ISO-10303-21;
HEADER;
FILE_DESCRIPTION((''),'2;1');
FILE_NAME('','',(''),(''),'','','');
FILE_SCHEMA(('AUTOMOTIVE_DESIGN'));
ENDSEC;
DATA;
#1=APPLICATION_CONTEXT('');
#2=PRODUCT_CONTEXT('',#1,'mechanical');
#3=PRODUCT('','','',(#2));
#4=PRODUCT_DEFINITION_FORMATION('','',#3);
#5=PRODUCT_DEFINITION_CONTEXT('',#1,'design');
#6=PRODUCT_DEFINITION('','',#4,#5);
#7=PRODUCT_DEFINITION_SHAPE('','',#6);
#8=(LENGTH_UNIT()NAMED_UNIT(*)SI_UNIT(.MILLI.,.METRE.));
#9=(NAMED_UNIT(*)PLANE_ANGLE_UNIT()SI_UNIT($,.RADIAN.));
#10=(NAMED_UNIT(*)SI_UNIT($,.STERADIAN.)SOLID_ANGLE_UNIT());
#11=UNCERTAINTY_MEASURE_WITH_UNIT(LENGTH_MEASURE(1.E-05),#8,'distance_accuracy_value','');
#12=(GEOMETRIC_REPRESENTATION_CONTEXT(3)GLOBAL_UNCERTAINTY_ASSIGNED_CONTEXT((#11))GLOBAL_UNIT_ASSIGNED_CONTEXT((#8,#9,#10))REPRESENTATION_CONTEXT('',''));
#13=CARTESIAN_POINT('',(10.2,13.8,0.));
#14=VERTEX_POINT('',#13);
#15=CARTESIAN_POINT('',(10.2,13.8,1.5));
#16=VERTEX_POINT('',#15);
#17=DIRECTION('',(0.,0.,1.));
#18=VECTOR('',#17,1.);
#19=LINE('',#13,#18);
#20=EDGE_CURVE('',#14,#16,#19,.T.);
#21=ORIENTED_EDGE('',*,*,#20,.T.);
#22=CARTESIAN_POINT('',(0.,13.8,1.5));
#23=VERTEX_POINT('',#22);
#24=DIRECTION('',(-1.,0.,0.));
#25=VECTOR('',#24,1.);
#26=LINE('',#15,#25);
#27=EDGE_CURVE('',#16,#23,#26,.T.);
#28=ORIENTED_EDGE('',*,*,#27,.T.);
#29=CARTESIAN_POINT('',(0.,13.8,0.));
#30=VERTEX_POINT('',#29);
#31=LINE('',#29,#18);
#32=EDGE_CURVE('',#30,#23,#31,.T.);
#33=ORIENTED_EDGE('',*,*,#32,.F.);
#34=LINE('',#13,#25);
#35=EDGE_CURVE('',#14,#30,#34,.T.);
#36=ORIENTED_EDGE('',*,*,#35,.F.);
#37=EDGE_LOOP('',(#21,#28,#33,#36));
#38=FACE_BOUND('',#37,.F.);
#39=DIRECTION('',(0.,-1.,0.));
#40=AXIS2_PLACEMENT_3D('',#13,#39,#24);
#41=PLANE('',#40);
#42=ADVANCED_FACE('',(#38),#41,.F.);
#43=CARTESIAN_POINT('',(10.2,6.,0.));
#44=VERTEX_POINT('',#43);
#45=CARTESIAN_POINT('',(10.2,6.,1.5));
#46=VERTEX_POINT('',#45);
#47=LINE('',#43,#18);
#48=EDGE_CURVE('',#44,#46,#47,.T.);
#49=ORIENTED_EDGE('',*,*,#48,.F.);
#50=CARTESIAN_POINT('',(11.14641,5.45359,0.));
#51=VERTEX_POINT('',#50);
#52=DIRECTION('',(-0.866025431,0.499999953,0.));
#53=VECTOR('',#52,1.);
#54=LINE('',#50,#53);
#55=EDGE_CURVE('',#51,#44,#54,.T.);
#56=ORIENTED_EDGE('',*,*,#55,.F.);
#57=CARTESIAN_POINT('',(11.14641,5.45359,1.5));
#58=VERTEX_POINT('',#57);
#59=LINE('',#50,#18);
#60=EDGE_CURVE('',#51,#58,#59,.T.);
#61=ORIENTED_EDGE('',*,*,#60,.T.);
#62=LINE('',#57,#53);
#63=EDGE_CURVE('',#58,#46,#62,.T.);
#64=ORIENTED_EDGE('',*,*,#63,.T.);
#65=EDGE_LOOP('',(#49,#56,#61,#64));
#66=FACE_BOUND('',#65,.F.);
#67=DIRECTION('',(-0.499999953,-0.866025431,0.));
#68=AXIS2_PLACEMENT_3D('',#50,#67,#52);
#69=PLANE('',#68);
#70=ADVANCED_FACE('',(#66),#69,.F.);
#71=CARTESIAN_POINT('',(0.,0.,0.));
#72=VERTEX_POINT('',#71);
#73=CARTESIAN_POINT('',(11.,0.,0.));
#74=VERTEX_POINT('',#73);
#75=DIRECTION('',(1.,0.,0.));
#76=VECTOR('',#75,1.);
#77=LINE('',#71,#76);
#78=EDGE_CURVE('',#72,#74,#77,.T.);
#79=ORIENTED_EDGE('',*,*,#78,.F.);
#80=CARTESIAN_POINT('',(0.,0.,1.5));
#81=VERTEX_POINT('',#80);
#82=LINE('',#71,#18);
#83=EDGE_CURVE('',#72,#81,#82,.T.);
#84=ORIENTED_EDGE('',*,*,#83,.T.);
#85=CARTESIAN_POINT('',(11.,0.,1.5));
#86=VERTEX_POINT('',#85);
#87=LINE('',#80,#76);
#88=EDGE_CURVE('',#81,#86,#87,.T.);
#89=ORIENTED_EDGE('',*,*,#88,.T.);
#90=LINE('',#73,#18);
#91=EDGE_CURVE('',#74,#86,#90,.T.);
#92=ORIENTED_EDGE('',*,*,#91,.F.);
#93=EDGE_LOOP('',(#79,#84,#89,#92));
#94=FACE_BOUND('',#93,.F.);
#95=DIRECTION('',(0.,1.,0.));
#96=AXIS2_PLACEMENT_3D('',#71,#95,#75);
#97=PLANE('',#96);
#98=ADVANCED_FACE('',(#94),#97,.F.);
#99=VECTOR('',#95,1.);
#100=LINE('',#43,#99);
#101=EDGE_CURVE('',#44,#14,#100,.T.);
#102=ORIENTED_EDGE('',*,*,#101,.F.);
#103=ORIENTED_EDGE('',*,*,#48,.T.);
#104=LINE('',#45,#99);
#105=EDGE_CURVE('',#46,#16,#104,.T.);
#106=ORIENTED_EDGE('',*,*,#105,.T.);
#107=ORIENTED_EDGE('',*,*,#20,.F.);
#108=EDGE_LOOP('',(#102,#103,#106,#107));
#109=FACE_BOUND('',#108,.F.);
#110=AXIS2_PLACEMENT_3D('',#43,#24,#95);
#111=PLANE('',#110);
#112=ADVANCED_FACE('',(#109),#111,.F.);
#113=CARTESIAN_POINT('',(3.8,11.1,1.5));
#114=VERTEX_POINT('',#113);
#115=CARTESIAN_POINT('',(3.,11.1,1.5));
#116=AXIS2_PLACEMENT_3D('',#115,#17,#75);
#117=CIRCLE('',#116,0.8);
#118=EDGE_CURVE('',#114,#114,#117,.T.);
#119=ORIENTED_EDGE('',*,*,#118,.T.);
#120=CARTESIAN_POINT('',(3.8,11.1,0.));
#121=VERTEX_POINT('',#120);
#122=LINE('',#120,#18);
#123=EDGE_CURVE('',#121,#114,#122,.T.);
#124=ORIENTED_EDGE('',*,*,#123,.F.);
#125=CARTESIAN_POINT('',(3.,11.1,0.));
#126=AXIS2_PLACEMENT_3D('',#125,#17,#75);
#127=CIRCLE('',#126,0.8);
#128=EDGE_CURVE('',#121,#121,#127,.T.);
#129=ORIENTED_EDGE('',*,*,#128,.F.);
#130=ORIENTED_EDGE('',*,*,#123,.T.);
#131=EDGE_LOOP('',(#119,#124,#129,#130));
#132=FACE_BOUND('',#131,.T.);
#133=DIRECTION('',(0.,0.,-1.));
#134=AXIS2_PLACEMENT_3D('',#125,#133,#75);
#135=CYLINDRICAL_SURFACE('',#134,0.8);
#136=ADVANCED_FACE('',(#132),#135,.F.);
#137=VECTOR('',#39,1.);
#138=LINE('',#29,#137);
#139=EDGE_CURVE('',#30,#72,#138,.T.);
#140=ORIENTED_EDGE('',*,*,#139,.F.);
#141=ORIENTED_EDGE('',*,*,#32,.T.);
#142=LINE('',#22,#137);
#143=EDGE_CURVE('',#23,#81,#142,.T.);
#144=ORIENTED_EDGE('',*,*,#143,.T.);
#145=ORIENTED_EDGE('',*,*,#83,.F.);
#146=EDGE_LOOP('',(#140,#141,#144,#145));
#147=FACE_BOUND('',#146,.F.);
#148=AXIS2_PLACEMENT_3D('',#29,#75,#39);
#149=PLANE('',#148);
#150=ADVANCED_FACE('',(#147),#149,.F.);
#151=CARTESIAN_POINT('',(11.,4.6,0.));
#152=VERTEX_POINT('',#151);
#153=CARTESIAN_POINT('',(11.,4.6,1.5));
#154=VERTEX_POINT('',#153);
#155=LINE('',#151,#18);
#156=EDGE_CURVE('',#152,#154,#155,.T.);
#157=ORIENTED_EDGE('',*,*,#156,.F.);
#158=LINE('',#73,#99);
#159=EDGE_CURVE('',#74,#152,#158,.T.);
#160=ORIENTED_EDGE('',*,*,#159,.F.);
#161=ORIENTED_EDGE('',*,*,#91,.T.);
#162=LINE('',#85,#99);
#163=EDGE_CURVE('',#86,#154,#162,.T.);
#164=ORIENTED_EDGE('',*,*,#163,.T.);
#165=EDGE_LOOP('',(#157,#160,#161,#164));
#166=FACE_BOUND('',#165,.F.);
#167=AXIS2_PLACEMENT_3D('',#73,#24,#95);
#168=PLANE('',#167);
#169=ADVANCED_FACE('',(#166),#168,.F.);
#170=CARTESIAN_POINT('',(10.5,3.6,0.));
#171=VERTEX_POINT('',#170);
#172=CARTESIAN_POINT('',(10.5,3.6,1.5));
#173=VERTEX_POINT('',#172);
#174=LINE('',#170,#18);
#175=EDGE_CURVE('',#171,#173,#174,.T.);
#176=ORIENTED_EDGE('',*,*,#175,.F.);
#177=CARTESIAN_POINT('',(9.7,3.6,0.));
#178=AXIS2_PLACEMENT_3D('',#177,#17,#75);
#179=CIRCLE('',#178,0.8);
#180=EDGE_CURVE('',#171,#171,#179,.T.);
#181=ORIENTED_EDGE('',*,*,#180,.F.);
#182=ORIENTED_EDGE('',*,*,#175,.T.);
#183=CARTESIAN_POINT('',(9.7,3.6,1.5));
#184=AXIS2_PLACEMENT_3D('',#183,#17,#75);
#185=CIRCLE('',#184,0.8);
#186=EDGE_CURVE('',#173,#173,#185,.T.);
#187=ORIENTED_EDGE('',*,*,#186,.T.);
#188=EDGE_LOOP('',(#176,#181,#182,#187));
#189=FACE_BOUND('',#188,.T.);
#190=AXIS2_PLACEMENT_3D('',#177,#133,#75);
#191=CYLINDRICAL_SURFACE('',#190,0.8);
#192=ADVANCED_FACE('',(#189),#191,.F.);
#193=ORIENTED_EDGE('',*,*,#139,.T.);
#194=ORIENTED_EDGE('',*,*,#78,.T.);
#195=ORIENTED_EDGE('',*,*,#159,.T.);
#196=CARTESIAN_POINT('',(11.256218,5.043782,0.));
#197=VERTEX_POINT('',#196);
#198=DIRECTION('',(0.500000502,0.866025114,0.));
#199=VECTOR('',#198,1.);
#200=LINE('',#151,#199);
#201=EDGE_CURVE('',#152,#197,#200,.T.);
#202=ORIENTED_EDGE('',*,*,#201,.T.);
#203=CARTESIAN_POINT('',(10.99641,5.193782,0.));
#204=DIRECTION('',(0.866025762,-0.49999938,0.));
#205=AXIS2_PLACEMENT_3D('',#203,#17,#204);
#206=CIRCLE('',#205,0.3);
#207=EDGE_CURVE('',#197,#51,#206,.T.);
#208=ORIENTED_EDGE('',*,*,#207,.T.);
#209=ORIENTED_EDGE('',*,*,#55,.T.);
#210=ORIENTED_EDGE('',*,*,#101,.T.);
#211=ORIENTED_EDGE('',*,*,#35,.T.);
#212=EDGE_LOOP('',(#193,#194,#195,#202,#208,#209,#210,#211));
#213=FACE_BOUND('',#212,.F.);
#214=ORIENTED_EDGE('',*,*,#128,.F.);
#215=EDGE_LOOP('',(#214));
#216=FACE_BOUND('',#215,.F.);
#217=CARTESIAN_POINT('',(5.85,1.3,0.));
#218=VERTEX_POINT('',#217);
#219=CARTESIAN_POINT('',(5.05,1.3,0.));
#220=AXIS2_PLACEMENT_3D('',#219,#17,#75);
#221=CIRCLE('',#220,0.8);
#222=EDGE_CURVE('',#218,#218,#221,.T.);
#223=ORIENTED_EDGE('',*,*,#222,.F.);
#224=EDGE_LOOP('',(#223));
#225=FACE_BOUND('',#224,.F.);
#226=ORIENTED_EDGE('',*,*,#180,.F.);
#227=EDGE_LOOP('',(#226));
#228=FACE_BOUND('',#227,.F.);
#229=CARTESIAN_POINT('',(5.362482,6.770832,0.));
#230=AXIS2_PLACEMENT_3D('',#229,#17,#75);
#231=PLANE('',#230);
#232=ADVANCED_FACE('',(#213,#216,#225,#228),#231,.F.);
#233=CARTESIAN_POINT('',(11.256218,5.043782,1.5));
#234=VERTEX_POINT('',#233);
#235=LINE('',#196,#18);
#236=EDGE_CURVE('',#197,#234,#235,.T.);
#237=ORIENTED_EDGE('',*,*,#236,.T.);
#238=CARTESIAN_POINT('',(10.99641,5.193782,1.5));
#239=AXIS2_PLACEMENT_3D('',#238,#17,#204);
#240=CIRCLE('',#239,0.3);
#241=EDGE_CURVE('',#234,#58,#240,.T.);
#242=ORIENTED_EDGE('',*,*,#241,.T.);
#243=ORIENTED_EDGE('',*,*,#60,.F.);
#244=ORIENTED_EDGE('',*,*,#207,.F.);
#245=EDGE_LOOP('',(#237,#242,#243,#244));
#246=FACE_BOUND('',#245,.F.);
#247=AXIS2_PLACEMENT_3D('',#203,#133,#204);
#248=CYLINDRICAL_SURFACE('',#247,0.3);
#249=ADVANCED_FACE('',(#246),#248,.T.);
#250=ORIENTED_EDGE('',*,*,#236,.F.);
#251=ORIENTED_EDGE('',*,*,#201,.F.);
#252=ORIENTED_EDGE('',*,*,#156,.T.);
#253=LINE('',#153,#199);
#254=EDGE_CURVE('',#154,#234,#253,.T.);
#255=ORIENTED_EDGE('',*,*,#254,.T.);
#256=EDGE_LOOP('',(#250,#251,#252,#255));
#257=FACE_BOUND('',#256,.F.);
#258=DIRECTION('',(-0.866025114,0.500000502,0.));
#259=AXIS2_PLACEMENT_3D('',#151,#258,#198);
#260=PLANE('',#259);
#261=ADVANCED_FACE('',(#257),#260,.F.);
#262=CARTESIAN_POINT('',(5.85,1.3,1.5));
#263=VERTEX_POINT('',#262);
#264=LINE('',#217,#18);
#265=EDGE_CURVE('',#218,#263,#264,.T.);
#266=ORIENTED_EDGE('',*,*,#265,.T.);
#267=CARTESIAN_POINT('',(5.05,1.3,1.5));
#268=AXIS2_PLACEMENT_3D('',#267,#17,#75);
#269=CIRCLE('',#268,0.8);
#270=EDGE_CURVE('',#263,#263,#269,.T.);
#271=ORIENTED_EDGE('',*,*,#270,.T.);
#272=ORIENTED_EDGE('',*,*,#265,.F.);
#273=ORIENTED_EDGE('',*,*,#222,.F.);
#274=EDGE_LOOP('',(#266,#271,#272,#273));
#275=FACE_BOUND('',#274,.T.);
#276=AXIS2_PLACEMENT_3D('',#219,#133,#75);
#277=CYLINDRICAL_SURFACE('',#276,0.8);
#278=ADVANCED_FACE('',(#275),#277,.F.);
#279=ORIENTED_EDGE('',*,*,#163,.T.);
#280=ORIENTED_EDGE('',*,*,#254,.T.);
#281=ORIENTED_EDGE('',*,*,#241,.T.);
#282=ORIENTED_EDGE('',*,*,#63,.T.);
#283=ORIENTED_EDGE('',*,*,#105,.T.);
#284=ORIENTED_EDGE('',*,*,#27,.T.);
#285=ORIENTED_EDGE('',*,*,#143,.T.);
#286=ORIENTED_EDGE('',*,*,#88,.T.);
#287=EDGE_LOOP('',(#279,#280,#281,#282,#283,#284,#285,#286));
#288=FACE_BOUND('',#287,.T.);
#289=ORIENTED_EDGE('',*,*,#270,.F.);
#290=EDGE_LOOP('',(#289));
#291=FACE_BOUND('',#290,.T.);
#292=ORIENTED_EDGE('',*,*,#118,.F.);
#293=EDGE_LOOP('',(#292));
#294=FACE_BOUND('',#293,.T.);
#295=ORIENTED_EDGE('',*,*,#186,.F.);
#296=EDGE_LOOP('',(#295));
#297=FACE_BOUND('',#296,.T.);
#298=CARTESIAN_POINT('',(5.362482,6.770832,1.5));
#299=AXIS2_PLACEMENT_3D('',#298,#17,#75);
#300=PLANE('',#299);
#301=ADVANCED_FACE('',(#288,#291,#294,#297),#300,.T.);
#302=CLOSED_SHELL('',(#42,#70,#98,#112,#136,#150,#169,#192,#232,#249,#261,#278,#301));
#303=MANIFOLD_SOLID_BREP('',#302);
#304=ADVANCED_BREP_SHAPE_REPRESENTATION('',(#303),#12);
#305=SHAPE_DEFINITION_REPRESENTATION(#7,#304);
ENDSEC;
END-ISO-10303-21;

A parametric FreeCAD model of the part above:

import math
import FreeCAD as App
import Part
import Sketcher

V = App.Vector
Q = App.Units.Quantity

doc = App.newDocument("Part")
body = doc.addObject("PartDesign::Body", "Body")

sketch1 = doc.addObject("Sketcher::SketchObject", "Sketch")
body.addObject(sketch1)
sketch1.AttachmentSupport = (doc.XY_Plane, [""])
sketch1.MapMode = "FlatFace"
sketch1.addGeometry([
    Part.LineSegment(V(0, 0, 0), V(11, 0, 0)),
    Part.LineSegment(V(11, 0, 0), V(11, 4.6, 0)),
    Part.LineSegment(V(11, 4.6, 0), V(11.26, 5.04, 0)),
    Part.ArcOfCircle(Part.Circle(V(11, 5.19, 0), V(0, 0, 1), 0.3), math.radians(-30), math.radians(60)),
    Part.LineSegment(V(11.15, 5.45, 0), V(10.2, 6, 0)),
    Part.LineSegment(V(10.2, 6, 0), V(10.2, 13.8, 0)),
    Part.LineSegment(V(10.2, 13.8, 0), V(0, 13.8, 0)),
    Part.LineSegment(V(0, 13.8, 0), V(0, 0, 0)),
    Part.Circle(V(5.05, 1.3, 0), V(0, 0, 1), 0.8),
    Part.Circle(V(9.7, 3.6, 0), V(0, 0, 1), 0.8),
    Part.Circle(V(3, 11.1, 0), V(0, 0, 1), 0.8),
], False)
sketch1.addConstraint([
    Sketcher.Constraint("Coincident", 0, 2, 1, 1),
    Sketcher.Constraint("Coincident", 1, 2, 2, 1),
    Sketcher.Constraint("Tangent", 2, 2, 3, 1),
    Sketcher.Constraint("Tangent", 3, 2, 4, 1),
    Sketcher.Constraint("Coincident", 4, 2, 5, 1),
    Sketcher.Constraint("Coincident", 5, 2, 6, 1),
    Sketcher.Constraint("Coincident", 6, 2, 7, 1),
    Sketcher.Constraint("Coincident", 7, 2, 0, 1),
    Sketcher.Constraint("Horizontal", 0),
    Sketcher.Constraint("Vertical", 1),
    Sketcher.Constraint("Vertical", 5),
    Sketcher.Constraint("Horizontal", 6),
    Sketcher.Constraint("Vertical", 7),
    Sketcher.Constraint("Coincident", 7, 2, -1, 1),
    Sketcher.Constraint("Equal", 8, 9),
    Sketcher.Constraint("Equal", 9, 10),
    Sketcher.Constraint("Perpendicular", 2, 4),
    Sketcher.Constraint("Diameter", 8, Q("1.6 mm")),
    Sketcher.Constraint("Radius", 3, Q("0.3 mm")),
    Sketcher.Constraint("DistanceX", 0, 1, 0, 2, Q("11 mm")),
    Sketcher.Constraint("Angle", 4, Q("150.000003 deg")),
    Sketcher.Constraint("DistanceX", 6, 2, 6, 1, Q("10.2 mm")),
    Sketcher.Constraint("DistanceY", 1, 1, 1, 2, Q("4.6 mm")),
    Sketcher.Constraint("DistanceY", 5, 1, 5, 2, Q("7.8 mm")),
    Sketcher.Constraint("DistanceY", 7, 2, 7, 1, Q("13.8 mm")),
    Sketcher.Constraint("DistanceX", -1, 1, 10, 3, Q("3 mm")),
    Sketcher.Constraint("DistanceY", 9, 3, 1, 2, Q("1 mm")),
    Sketcher.Constraint("DistanceY", -1, 1, 8, 3, Q("1.3 mm")),
    Sketcher.Constraint("DistanceX", -1, 1, 9, 3, Q("9.7 mm")),
    Sketcher.Constraint("DistanceY", -1, 1, 10, 3, Q("11.1 mm")),
    Sketcher.Constraint("DistanceX", -1, 1, 8, 3, Q("5.05 mm")),
])
pad1 = doc.addObject("PartDesign::Pad", "Pad")
body.addObject(pad1)
pad1.Profile = sketch1
pad1.Length = 1.5

doc.recompute()
